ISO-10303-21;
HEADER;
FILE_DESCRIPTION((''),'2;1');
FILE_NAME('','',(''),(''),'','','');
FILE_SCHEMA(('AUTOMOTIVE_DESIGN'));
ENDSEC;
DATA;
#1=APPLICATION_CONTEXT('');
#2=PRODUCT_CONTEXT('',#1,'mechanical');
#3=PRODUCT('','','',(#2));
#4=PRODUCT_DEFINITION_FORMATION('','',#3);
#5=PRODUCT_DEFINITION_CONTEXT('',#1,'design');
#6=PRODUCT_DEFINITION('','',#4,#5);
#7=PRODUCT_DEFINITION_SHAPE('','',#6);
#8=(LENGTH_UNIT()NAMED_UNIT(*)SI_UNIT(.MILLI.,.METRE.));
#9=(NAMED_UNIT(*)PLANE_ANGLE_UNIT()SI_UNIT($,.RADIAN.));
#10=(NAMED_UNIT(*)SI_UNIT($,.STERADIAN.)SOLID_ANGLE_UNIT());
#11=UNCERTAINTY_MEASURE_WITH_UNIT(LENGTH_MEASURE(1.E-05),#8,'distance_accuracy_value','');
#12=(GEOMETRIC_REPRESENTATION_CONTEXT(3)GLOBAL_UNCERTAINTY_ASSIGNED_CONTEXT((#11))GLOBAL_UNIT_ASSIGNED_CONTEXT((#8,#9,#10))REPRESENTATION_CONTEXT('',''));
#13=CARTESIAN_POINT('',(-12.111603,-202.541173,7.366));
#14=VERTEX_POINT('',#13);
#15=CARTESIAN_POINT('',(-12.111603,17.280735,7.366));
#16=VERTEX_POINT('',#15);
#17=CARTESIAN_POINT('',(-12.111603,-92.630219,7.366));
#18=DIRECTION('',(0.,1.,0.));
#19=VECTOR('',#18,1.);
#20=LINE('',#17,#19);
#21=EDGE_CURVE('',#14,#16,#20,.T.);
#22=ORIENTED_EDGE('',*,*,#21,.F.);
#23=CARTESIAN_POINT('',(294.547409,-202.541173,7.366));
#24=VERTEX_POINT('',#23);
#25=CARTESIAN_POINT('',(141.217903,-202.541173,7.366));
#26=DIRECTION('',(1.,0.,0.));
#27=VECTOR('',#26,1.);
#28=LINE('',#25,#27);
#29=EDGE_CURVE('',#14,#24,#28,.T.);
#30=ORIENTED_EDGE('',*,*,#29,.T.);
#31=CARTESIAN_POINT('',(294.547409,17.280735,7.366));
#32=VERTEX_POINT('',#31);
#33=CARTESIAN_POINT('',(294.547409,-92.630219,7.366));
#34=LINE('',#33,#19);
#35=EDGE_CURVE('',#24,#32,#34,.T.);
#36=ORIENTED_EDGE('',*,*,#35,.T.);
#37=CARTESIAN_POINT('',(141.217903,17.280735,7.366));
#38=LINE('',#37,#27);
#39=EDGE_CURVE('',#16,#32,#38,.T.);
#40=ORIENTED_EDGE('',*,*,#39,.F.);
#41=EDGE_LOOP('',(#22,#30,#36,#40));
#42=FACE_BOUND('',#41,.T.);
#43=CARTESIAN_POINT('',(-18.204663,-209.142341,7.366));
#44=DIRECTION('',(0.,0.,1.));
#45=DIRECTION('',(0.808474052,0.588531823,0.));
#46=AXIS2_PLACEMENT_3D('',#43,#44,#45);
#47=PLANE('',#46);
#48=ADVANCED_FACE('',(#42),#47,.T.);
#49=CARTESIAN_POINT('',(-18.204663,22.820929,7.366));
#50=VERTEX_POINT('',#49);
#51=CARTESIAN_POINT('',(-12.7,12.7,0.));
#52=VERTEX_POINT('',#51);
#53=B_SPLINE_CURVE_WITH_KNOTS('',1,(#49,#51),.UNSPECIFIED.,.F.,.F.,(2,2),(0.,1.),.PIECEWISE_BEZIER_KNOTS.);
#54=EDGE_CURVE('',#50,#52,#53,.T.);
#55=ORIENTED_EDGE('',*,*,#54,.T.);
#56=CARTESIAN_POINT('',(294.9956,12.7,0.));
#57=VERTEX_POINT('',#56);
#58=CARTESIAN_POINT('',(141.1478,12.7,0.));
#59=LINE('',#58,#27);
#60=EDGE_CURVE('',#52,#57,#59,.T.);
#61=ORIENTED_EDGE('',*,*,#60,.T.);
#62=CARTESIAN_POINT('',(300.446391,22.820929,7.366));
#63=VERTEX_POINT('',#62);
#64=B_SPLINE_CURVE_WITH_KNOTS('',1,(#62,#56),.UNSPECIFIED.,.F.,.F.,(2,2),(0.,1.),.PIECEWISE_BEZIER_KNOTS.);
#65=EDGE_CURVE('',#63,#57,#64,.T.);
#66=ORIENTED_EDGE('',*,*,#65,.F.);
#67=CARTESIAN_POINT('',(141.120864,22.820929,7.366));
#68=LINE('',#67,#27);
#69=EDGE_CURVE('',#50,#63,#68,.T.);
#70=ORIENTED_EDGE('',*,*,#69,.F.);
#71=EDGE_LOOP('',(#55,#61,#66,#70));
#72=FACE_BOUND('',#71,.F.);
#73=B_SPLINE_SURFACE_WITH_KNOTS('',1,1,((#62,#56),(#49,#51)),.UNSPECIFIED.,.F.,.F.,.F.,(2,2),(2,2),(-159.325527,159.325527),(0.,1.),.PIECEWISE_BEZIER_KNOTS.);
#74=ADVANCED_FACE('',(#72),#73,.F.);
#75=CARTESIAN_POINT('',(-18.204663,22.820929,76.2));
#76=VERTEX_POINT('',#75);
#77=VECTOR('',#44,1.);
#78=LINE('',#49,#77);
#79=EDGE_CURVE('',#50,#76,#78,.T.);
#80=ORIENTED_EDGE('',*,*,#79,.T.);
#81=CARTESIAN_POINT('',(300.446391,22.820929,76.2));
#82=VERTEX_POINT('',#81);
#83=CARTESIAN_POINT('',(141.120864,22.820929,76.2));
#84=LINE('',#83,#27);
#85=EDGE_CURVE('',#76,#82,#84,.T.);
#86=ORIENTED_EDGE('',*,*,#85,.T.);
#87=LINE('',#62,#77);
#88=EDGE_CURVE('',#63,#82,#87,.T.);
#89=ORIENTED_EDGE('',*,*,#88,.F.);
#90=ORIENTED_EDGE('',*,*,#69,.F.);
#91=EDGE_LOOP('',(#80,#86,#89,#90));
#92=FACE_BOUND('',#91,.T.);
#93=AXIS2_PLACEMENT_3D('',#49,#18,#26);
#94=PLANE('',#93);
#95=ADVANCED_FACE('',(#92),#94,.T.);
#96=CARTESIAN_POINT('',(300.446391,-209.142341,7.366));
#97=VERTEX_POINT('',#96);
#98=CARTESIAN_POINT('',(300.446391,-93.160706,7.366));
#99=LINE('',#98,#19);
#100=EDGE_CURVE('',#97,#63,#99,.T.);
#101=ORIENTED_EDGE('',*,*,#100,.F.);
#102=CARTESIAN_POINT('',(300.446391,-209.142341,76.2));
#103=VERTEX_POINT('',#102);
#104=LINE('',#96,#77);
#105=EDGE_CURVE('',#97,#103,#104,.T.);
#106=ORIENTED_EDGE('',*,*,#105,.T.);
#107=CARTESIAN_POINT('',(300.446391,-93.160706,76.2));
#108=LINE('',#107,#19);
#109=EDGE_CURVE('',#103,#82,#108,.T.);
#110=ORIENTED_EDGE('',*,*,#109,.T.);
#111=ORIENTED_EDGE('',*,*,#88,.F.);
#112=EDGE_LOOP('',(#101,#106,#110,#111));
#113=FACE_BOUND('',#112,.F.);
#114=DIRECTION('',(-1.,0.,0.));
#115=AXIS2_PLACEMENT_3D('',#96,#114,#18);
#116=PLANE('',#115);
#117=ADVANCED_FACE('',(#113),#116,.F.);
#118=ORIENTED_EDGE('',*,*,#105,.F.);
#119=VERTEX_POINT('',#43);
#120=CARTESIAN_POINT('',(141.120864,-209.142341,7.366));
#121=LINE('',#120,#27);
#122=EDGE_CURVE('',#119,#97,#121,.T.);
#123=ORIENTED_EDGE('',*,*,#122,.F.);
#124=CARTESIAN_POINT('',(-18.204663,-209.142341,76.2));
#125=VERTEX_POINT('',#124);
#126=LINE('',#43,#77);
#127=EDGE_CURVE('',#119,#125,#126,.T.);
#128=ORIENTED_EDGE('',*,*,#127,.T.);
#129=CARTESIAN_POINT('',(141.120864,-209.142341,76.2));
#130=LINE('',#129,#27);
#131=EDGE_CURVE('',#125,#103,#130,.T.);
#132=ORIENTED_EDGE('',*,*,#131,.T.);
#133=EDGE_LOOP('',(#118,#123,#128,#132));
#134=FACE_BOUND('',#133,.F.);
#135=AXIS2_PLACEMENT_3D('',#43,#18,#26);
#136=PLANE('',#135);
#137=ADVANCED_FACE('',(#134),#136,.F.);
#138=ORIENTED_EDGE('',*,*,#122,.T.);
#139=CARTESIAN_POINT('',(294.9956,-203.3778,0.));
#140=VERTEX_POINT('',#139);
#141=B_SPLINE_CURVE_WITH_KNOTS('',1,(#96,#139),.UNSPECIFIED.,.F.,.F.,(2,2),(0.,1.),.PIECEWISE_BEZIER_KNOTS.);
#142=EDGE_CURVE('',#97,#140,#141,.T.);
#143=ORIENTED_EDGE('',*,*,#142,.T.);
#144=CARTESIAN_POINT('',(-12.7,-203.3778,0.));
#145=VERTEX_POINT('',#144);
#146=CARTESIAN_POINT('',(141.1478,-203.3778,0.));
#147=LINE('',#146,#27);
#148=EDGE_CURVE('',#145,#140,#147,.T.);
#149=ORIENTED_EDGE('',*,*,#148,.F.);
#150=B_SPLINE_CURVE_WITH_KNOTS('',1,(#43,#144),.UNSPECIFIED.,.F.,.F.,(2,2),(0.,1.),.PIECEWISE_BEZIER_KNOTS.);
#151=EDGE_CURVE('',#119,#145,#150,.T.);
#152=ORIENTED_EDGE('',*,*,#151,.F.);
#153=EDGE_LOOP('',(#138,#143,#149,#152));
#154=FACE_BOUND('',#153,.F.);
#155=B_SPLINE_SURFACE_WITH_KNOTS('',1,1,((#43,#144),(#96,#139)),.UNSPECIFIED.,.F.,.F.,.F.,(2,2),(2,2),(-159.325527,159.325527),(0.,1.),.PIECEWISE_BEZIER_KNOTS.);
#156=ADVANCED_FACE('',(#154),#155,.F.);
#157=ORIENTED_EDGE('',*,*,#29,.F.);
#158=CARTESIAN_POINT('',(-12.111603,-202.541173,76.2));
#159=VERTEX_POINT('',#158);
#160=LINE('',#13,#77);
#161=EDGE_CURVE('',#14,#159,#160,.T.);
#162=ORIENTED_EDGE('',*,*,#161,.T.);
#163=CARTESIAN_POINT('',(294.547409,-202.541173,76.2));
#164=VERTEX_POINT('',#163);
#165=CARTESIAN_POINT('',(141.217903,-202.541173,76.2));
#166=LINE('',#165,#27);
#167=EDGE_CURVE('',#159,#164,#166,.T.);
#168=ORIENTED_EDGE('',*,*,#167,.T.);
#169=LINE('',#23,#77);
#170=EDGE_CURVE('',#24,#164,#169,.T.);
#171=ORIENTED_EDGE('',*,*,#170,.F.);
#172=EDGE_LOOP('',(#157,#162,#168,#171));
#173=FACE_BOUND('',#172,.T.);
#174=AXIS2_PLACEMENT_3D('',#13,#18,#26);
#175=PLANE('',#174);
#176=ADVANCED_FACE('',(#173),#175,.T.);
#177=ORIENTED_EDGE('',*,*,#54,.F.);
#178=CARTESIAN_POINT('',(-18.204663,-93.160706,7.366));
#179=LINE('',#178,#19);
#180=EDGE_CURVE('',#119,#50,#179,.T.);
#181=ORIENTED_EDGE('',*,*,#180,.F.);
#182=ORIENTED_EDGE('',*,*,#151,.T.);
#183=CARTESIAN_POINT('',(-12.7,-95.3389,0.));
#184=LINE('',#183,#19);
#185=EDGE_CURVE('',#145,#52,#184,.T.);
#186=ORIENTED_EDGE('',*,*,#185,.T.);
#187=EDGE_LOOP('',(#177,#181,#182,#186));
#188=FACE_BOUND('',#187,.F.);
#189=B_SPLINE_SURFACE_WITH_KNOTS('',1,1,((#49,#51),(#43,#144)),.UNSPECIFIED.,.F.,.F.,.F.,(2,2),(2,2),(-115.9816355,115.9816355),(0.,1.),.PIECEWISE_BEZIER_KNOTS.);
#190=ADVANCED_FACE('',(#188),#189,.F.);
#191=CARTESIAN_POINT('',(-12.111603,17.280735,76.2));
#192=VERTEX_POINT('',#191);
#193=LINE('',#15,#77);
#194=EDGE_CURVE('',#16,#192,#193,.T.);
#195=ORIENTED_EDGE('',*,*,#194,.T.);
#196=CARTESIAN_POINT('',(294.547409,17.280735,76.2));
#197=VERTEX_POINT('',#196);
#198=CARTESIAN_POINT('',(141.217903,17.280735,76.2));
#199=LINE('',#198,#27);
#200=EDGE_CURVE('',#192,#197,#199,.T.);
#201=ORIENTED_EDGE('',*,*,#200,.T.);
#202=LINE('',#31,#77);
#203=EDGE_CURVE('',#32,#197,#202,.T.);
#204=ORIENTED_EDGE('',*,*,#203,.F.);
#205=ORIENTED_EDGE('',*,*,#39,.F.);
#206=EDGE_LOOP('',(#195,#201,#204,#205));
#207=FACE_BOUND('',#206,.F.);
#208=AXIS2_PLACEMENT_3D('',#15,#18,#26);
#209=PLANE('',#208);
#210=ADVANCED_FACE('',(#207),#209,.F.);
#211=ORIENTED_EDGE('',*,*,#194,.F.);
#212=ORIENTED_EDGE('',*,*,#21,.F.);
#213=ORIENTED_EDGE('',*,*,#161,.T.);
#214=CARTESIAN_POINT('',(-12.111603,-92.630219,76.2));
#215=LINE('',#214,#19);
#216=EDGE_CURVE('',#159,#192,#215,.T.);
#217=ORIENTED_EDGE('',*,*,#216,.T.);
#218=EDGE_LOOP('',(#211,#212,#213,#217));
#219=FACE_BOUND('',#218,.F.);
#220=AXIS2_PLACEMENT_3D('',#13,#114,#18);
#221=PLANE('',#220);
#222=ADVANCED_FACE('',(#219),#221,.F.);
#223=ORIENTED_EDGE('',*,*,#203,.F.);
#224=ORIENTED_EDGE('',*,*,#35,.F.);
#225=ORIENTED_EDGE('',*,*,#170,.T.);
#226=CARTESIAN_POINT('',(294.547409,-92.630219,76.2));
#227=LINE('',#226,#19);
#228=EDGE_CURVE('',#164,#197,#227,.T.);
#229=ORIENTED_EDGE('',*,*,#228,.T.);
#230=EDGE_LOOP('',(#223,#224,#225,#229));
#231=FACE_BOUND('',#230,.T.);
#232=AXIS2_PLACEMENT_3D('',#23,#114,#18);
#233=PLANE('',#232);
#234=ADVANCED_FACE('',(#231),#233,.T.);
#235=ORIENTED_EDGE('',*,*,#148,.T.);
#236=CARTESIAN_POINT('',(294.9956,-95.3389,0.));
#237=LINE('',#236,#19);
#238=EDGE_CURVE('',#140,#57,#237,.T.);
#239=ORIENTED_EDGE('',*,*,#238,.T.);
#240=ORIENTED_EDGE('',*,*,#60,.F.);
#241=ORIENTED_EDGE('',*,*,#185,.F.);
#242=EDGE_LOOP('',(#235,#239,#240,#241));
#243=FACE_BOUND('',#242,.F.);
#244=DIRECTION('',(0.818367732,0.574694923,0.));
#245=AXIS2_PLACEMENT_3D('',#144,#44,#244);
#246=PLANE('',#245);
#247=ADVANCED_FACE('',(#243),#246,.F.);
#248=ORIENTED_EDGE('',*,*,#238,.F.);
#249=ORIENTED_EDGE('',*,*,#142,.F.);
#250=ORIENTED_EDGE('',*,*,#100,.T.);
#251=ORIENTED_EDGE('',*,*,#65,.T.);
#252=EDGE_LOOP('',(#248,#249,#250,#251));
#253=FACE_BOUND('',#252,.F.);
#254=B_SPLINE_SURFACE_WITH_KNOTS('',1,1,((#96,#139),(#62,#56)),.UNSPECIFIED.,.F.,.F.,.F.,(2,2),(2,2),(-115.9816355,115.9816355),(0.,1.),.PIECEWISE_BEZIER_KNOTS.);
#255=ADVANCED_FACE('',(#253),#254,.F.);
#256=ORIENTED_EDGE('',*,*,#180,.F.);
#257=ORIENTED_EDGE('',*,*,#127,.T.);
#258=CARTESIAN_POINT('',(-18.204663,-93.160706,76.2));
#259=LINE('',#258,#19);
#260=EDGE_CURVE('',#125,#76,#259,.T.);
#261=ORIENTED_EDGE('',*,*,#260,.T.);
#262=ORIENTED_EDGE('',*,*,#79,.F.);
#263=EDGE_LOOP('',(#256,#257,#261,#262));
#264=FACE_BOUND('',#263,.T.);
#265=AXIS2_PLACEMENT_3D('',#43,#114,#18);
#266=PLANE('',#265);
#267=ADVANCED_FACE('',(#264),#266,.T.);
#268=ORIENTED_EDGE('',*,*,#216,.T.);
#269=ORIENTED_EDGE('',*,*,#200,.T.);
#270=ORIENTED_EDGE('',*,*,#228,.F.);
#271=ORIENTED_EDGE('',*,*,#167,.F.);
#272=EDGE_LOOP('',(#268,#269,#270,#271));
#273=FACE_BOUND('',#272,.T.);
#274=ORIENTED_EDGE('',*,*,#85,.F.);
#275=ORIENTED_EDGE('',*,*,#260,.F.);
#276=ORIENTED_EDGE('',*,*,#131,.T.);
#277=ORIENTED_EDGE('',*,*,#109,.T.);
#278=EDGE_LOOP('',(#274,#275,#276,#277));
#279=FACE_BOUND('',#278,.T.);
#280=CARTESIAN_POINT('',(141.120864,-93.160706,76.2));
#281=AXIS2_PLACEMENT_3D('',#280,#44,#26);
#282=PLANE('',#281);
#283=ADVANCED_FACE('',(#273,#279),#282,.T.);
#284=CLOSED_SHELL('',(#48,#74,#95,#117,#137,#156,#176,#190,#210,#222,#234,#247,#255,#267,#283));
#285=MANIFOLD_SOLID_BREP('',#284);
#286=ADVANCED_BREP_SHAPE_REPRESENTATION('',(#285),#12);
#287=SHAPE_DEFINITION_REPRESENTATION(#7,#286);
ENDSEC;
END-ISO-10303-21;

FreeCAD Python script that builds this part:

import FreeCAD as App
import Part
import Sketcher

V = App.Vector
Q = App.Units.Quantity

doc = App.newDocument("Part")
body = doc.addObject("PartDesign::Body", "Body")

# Sketch on XY plane
sketch1 = body.newObject("Sketcher::SketchObject", "Sketch")
sketch1.AttachmentSupport = (doc.getObject("XY_Plane"), [""])
sketch1.MapMode = "FlatFace"
sketch1.AttachmentOffset = App.Placement(V(0, 0, 0.29 * 25.4), App.Rotation())
sketch1.addGeometry([
    Part.LineSegment(V(-18, 23, 0), V(-18, -209, 0)),
    Part.LineSegment(V(-18, -209, 0), V(300, -209, 0)),
    Part.LineSegment(V(300, -209, 0), V(300, 23, 0)),
    Part.LineSegment(V(300, 23, 0), V(-18, 23, 0)),
], False)
sketch1.addConstraint([
    Sketcher.Constraint("Coincident", 0, 2, 1, 1),
    Sketcher.Constraint("Coincident", 1, 2, 2, 1),
    Sketcher.Constraint("Coincident", 2, 2, 3, 1),
    Sketcher.Constraint("Coincident", 3, 2, 0, 1),
    Sketcher.Constraint("Vertical", 0),
    Sketcher.Constraint("Horizontal", 1),
    Sketcher.Constraint("Vertical", 2),
    Sketcher.Constraint("Horizontal", 3),
    Sketcher.Constraint("DistanceY", 0, 2, 0, 1, 231.963271),
    Sketcher.Constraint("DistanceX", 1, 1, 1, 2, 318.651054),
    Sketcher.Constraint("DistanceY", 0, 2, -1, 1, 209.142341),
    Sketcher.Constraint("DistanceX", -1, 1, 1, 2, 300.446391),
])

# Sketch on XY plane
sketch2 = body.newObject("Sketcher::SketchObject", "Sketch001")
sketch2.AttachmentSupport = (doc.getObject("XY_Plane"), [""])
sketch2.MapMode = "FlatFace"
sketch2.addGeometry([
    Part.LineSegment(V(-13, 13, 0), V(-13, -203, 0)),
    Part.LineSegment(V(-13, -203, 0), V(295, -203, 0)),
    Part.LineSegment(V(295, -203, 0), V(295, 13, 0)),
    Part.LineSegment(V(295, 13, 0), V(-13, 13, 0)),
], False)
sketch2.addConstraint([
    Sketcher.Constraint("Coincident", 0, 2, 1, 1),
    Sketcher.Constraint("Coincident", 1, 2, 2, 1),
    Sketcher.Constraint("Coincident", 2, 2, 3, 1),
    Sketcher.Constraint("Coincident", 3, 2, 0, 1),
    Sketcher.Constraint("Vertical", 0),
    Sketcher.Constraint("Horizontal", 1),
    Sketcher.Constraint("Vertical", 2),
    Sketcher.Constraint("Horizontal", 3),
    Sketcher.Constraint("DistanceX", 0, 2, -1, 1, Q("0.5 in")),
    Sketcher.Constraint("DistanceY", -1, 1, 2, 2, Q("0.5 in")),
    Sketcher.Constraint("DistanceX", 1, 1, 1, 2, Q("12.114 in")),
    Sketcher.Constraint("DistanceY", 0, 2, 0, 1, Q("8.507 in")),
])

additiveloft = body.newObject("PartDesign::AdditiveLoft", "AdditiveLoft")
additiveloft.Profile = sketch1
additiveloft.Sections = [sketch2]

# Sketch on XY plane
sketch3 = body.newObject("Sketcher::SketchObject", "Sketch002")
sketch3.AttachmentSupport = (doc.getObject("XY_Plane"), [""])
sketch3.MapMode = "FlatFace"
sketch3.AttachmentOffset = App.Placement(V(0, 0, 0.29 * 25.4), App.Rotation())
sketch3.addGeometry([
    Part.LineSegment(V(-18, 23, 0), V(-18, -209, 0)),  # 0
    Part.LineSegment(V(-18, -209, 0), V(300, -209, 0)),  # 1
    Part.LineSegment(V(300, -209, 0), V(300, 23, 0)),  # 2
    Part.LineSegment(V(300, 23, 0), V(-18, 23, 0)),  # 3
    Part.LineSegment(V(295, -203, 0), V(-12, -203, 0)),  # 4
    Part.LineSegment(V(-12, -203, 0), V(-12, 17, 0)),  # 5
    Part.LineSegment(V(-12, 17, 0), V(295, 17, 0)),  # 6
    Part.LineSegment(V(295, 17, 0), V(295, -203, 0)),  # 7
], False)
sketch3.addConstraint([
    Sketcher.Constraint("Coincident", 0, 2, 1, 1),
    Sketcher.Constraint("Coincident", 1, 2, 2, 1),
    Sketcher.Constraint("Coincident", 2, 2, 3, 1),
    Sketcher.Constraint("Coincident", 3, 2, 0, 1),
    Sketcher.Constraint("Coincident", 4, 2, 5, 1),
    Sketcher.Constraint("Coincident", 5, 2, 6, 1),
    Sketcher.Constraint("Coincident", 6, 2, 7, 1),
    Sketcher.Constraint("Coincident", 7, 2, 4, 1),
    Sketcher.Constraint("Vertical", 0),
    Sketcher.Constraint("Horizontal", 1),
    Sketcher.Constraint("Vertical", 2),
    Sketcher.Constraint("Horizontal", 3),
    Sketcher.Constraint("Horizontal", 4),
    Sketcher.Constraint("Vertical", 5),
    Sketcher.Constraint("Horizontal", 6),
    Sketcher.Constraint("Vertical", 7),
    Sketcher.Constraint("DistanceX", 4, 2, 4, 1, 306.659011),
    Sketcher.Constraint("DistanceY", 0, 2, 0, 1, 231.963271),
    Sketcher.Constraint("DistanceX", 1, 1, 1, 2, 318.651054),
    Sketcher.Constraint("DistanceY", 5, 1, 5, 2, 219.821908),
    Sketcher.Constraint("DistanceY", 0, 2, -1, 1, 209.142341),
    Sketcher.Constraint("DistanceX", -1, 1, 1, 2, 300.446391),
    Sketcher.Constraint("DistanceX", -1, 1, 6, 2, 294.547409),
    Sketcher.Constraint("DistanceY", 0, 2, 4, 2, 6.601168),
])
pad1 = body.newObject("PartDesign::Pad", "Pad")
pad1.Profile = sketch3
pad1.Length = Q("2.71 in")

doc.recompute()
